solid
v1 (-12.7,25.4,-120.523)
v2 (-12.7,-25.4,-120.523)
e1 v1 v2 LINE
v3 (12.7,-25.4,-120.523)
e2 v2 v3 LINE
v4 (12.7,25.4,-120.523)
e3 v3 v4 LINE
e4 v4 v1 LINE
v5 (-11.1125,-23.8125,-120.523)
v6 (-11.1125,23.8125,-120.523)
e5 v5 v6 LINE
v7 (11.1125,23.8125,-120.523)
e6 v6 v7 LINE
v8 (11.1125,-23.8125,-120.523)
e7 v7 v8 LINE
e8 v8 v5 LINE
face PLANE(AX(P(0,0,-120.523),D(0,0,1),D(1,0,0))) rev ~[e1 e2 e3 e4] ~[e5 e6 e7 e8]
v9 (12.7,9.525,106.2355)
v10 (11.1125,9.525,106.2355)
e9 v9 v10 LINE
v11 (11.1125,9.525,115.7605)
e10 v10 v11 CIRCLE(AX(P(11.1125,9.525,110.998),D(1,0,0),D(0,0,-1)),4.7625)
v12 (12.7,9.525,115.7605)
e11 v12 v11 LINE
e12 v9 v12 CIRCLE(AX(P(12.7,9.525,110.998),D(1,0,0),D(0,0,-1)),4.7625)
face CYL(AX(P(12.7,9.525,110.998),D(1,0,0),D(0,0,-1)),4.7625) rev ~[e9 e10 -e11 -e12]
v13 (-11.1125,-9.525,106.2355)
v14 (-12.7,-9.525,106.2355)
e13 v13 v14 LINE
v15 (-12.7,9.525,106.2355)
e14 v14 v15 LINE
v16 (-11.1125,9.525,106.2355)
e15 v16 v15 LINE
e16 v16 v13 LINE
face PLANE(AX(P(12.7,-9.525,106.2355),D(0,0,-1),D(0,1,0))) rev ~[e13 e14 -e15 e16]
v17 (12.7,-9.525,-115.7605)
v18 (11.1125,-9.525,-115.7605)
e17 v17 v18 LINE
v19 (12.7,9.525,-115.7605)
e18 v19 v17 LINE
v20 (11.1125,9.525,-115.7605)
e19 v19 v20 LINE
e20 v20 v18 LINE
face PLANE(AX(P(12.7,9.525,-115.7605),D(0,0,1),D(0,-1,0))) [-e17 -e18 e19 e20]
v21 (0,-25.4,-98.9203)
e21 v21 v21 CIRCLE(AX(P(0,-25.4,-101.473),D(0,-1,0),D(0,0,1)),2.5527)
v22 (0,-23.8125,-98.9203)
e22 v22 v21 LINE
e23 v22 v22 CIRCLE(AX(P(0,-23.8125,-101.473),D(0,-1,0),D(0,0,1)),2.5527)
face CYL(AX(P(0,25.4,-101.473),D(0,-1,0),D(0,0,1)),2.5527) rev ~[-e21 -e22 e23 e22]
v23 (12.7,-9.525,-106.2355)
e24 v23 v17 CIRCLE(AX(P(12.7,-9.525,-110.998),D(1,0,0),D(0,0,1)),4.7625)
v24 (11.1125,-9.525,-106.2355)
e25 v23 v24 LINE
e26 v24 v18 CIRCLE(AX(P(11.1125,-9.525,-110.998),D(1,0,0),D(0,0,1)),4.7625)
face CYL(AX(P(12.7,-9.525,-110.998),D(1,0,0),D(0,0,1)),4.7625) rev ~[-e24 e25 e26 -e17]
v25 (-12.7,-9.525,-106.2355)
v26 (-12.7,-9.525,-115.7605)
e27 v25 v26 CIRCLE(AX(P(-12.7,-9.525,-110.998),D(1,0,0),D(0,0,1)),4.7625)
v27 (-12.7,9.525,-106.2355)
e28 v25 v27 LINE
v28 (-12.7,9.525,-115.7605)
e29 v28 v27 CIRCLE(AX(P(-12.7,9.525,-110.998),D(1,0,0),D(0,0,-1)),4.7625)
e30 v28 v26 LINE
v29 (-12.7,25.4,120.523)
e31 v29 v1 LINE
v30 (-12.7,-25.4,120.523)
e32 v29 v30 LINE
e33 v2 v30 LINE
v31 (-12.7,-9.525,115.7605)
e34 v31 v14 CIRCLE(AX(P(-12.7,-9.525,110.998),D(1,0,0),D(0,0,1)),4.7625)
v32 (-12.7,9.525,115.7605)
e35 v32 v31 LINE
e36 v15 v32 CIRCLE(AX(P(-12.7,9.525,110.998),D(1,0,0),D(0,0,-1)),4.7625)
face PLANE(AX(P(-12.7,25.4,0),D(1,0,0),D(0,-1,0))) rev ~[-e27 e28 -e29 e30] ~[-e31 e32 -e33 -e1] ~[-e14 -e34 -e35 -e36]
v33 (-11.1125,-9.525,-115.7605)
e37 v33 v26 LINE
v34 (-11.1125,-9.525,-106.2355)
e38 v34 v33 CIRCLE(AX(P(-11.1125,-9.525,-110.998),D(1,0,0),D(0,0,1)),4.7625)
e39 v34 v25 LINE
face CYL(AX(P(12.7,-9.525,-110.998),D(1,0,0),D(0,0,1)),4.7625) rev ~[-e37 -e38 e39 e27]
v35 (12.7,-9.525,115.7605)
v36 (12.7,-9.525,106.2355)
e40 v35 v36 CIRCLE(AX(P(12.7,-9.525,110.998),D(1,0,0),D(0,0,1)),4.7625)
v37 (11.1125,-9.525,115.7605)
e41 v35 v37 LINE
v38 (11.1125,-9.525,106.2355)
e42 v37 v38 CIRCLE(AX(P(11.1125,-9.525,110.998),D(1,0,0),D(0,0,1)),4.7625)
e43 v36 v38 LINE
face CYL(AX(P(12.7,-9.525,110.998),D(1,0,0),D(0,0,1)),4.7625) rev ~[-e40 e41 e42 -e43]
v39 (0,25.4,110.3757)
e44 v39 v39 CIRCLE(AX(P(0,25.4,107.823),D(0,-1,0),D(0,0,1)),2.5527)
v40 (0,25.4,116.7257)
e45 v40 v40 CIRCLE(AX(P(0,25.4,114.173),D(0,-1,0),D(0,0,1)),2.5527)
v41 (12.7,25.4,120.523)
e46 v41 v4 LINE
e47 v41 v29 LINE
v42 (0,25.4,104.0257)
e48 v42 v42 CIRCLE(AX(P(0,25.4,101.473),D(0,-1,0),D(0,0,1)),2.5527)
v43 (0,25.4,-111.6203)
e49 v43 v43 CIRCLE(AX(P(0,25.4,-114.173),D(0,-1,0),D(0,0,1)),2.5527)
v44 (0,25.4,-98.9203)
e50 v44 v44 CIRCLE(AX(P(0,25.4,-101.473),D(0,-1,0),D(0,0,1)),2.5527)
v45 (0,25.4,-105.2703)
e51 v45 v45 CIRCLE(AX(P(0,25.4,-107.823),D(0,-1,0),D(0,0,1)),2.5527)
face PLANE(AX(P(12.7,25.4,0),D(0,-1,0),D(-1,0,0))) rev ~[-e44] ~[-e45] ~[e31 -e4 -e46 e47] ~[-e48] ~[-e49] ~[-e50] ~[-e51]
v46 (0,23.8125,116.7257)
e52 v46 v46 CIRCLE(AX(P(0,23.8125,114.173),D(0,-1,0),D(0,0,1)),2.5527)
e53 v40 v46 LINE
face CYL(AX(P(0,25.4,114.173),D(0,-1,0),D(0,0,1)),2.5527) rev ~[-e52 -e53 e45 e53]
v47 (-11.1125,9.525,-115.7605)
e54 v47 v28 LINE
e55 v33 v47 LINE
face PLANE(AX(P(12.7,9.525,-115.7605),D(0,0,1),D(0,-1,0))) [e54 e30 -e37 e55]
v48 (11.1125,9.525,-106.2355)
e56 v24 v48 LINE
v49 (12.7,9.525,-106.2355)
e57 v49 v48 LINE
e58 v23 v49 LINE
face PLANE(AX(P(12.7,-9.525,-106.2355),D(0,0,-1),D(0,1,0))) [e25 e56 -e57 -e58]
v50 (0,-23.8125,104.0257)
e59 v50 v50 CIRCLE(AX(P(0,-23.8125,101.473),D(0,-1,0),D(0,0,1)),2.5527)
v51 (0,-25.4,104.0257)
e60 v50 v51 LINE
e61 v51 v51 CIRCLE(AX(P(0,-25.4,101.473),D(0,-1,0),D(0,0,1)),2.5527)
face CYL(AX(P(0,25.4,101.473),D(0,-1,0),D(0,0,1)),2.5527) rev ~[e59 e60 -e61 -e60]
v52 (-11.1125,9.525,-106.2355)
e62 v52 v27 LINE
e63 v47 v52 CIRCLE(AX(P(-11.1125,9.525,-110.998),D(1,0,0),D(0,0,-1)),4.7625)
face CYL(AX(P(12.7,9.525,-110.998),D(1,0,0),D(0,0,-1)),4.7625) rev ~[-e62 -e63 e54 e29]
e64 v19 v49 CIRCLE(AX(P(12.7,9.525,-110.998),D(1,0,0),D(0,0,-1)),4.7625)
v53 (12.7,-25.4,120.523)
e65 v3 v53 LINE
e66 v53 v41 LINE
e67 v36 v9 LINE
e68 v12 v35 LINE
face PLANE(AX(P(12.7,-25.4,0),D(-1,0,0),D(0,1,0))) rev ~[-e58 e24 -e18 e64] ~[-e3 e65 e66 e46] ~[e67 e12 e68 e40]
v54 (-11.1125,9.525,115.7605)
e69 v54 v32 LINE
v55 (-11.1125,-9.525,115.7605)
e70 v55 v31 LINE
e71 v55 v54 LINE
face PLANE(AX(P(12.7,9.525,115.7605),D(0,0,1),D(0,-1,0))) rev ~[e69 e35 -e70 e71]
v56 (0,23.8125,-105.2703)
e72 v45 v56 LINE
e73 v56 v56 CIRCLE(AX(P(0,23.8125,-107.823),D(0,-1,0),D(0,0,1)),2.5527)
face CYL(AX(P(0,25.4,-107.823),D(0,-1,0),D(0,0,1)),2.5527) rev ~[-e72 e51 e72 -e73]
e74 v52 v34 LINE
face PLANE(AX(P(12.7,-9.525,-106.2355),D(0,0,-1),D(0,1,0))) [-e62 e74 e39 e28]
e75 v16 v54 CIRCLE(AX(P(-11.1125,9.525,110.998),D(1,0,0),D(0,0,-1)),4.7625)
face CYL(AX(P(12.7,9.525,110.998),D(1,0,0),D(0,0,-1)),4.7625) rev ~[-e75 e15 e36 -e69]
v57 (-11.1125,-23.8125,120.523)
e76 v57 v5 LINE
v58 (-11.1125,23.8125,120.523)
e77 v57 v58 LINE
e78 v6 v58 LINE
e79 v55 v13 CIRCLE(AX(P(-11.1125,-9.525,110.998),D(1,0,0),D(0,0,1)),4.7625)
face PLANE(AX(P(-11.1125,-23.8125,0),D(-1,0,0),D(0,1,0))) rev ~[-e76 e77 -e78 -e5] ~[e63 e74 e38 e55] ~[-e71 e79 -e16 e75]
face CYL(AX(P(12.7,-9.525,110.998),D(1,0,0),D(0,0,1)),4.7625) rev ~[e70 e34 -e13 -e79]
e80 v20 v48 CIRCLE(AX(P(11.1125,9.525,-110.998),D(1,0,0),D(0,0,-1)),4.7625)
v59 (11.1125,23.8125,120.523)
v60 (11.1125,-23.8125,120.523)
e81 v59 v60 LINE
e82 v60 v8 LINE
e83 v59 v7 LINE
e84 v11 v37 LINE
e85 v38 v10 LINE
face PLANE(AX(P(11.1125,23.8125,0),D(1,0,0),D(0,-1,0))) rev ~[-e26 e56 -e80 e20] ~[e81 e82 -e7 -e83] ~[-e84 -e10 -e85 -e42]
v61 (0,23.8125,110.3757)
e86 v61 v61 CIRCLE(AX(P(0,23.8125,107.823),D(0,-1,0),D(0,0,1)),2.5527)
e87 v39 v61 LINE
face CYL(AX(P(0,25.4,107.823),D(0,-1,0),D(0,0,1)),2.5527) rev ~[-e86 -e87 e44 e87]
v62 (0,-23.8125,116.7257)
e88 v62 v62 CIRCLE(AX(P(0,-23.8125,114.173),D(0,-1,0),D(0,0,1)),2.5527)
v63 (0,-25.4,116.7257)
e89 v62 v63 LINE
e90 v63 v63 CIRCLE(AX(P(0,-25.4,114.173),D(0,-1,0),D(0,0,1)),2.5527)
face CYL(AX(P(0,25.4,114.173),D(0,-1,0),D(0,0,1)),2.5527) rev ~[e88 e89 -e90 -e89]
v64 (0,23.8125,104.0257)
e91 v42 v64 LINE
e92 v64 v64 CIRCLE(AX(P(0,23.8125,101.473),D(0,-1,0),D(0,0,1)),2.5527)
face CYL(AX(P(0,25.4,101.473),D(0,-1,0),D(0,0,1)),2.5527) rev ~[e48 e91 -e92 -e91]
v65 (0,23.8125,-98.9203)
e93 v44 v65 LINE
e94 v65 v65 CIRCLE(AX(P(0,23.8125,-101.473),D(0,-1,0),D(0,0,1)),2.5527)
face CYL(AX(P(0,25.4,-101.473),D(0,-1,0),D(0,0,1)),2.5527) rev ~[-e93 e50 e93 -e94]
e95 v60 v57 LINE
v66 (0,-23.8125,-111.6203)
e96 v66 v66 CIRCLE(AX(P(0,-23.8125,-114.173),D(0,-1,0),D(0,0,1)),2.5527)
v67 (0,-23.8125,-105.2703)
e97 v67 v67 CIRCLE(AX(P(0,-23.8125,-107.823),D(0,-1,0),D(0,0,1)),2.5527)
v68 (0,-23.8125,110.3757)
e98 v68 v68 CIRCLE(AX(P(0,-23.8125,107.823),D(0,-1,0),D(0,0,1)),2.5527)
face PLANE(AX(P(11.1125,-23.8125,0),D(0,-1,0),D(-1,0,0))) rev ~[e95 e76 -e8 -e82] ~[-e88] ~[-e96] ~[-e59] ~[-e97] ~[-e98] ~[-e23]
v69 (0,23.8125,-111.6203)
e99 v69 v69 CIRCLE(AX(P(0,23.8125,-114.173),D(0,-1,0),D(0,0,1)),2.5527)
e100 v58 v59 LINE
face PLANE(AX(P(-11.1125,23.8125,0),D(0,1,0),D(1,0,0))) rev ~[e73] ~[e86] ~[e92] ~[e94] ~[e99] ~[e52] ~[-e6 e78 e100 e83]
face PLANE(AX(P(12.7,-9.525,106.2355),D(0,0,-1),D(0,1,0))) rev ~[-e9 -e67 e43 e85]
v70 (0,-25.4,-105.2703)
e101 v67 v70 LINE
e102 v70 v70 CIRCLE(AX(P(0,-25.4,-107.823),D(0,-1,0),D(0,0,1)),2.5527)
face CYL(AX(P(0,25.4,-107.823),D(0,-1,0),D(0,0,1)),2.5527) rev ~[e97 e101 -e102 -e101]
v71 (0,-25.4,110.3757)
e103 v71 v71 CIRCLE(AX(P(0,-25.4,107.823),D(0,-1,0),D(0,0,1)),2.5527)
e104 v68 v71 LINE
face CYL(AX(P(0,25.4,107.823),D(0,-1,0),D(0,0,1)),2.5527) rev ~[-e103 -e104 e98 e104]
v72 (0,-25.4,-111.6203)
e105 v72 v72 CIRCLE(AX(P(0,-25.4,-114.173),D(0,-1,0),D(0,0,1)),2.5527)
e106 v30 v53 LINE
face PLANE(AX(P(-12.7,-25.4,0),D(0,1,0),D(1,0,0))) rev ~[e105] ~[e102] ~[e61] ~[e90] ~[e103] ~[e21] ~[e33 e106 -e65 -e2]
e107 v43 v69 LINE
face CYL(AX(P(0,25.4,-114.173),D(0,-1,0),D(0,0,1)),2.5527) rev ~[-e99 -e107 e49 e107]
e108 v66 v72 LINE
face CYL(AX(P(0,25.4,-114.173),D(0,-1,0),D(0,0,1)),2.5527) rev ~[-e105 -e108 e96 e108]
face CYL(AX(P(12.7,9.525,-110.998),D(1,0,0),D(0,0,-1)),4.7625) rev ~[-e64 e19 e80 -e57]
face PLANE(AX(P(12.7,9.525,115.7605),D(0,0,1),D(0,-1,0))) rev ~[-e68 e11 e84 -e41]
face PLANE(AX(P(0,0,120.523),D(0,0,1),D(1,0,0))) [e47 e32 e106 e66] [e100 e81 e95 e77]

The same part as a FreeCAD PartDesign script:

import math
import FreeCAD as App
import Part
import Sketcher
from FreeCAD import Vector
Q = App.Units.Quantity

doc = App.newDocument("Part")
body = doc.addObject("PartDesign::Body", "Body")

sketch1 = body.newObject("Sketcher::SketchObject", "Sketch")
sketch1.AttachmentSupport = (doc.getObject("XY_Plane"), [""])
sketch1.MapMode = "FlatFace"
sketch1.addGeometry([
    Part.LineSegment(Vector(-13, 25, 0), Vector(-13, -25, 0)),
    Part.LineSegment(Vector(-13, -25, 0), Vector(13, -25, 0)),
    Part.LineSegment(Vector(13, -25, 0), Vector(13, 25, 0)),
    Part.LineSegment(Vector(13, 25, 0), Vector(-13, 25, 0)),
    Part.LineSegment(Vector(-11, -24, 0), Vector(-11, 24, 0)),
    Part.LineSegment(Vector(-11, 24, 0), Vector(11, 24, 0)),
    Part.LineSegment(Vector(11, 24, 0), Vector(11, -24, 0)),
    Part.LineSegment(Vector(11, -24, 0), Vector(-11, -24, 0)),
], False)
sketch1.addConstraint([
    Sketcher.Constraint("Coincident", 0, 2, 1, 1),
    Sketcher.Constraint("Coincident", 1, 2, 2, 1),
    Sketcher.Constraint("Coincident", 2, 2, 3, 1),
    Sketcher.Constraint("Coincident", 3, 2, 0, 1),
    Sketcher.Constraint("Coincident", 4, 2, 5, 1),
    Sketcher.Constraint("Coincident", 5, 2, 6, 1),
    Sketcher.Constraint("Coincident", 6, 2, 7, 1),
    Sketcher.Constraint("Coincident", 7, 2, 4, 1),
    Sketcher.Constraint("Vertical", 0),
    Sketcher.Constraint("Horizontal", 1),
    Sketcher.Constraint("Vertical", 2),
    Sketcher.Constraint("Horizontal", 3),
    Sketcher.Constraint("Vertical", 4),
    Sketcher.Constraint("Horizontal", 5),
    Sketcher.Constraint("Vertical", 6),
    Sketcher.Constraint("Horizontal", 7),
    Sketcher.Constraint("Symmetric", 0, 2, 2, 2, -1, 1),
    Sketcher.Constraint("Symmetric", 4, 2, 6, 2, -1, 1),
    Sketcher.Constraint("DistanceX", 1, 1, 1, 2, Q("1 in")),
    Sketcher.Constraint("DistanceY", 0, 2, 0, 1, Q("2 in")),
    Sketcher.Constraint("DistanceX", 3, 2, 4, 2, Q("0.0625 in")),
    Sketcher.Constraint("DistanceY", 4, 2, 3, 2, Q("0.0625 in")),
])
pad1 = body.newObject("PartDesign::Pad", "Pad")
pad1.Profile = sketch1
pad1.Length = Q("9.49 in")
pad1.Midplane = True

sketch2 = body.newObject("Sketcher::SketchObject", "Sketch001")
sketch2.AttachmentSupport = (doc.getObject("XZ_Plane"), [""])
sketch2.MapMode = "FlatFace"
sketch2.AttachmentOffset = App.Placement(Vector(0, 0, -1 * 25.4), App.Rotation())
sketch2.addGeometry([
    Part.Circle(Vector(0, 114.2, 0), Vector(0, 0, 1), 2.6),
    Part.Circle(Vector(0, 107.8, 0), Vector(0, 0, 1), 2.6),
    Part.Circle(Vector(0, 101.5, 0), Vector(0, 0, 1), 2.6),
    Part.Circle(Vector(0, -101.5, 0), Vector(0, 0, 1), 2.6),
    Part.Circle(Vector(0, -107.8, 0), Vector(0, 0, 1), 2.6),
    Part.Circle(Vector(0, -114.2, 0), Vector(0, 0, 1), 2.6),
], False)
sketch2.addConstraint([
    Sketcher.Constraint("Equal", 0, 1),
    Sketcher.Constraint("Equal", 1, 2),
    Sketcher.Constraint("Equal", 2, 3),
    Sketcher.Constraint("Equal", 3, 4),
    Sketcher.Constraint("Equal", 4, 5),
    Sketcher.Constraint("Symmetric", 2, 3, 3, 3, -1, 1),
    Sketcher.Constraint("Symmetric", 1, 3, 4, 3, -1, 1),
    Sketcher.Constraint("Symmetric", 0, 3, 5, 3, -1, 1),
    Sketcher.Constraint("PointOnObject", 0, 3, -2),
    Sketcher.Constraint("PointOnObject", 1, 3, -2),
    Sketcher.Constraint("PointOnObject", 2, 3, -2),
    Sketcher.Constraint("Diameter", 0, Q("0.201 in")),
    Sketcher.Constraint("DistanceY", 2, 3, 0, 3, Q("0.5 in")),
    Sketcher.Constraint("DistanceY", 1, 3, 0, 3, Q("0.25 in")),
    Sketcher.Constraint("DistanceY", 3, 3, 2, 3, Q("7.99 in")),
])
doc.recompute()
hole = body.newObject("PartDesign::Hole", "Hole")
hole.Profile = sketch2
hole.ThreadType = "None"
hole.Diameter = Q("0.201 in")
hole.DepthType = "ThroughAll"
hole.Reversed = True

sketch3 = body.newObject("Sketcher::SketchObject", "Sketch002")
sketch3.AttachmentSupport = (doc.getObject("YZ_Plane"), [""])
sketch3.MapMode = "FlatFace"
sketch3.AttachmentOffset = App.Placement(Vector(0, 0, 0.5 * 25.4), App.Rotation())
sketch3.addGeometry([
    Part.ArcOfCircle(Part.Circle(Vector(9.5, 111, 0), Vector(0, 0, 1), 4.8), math.radians(-90), math.radians(90)),
    Part.LineSegment(Vector(9.5, 115.8, 0), Vector(-9.5, 115.8, 0)),
    Part.ArcOfCircle(Part.Circle(Vector(-9.5, 111, 0), Vector(0, 0, 1), 4.8), math.radians(90), math.radians(270)),
    Part.LineSegment(Vector(-9.5, 106.2, 0), Vector(9.5, 106.2, 0)),
    Part.LineSegment(Vector(-9.5, -115.8, 0), Vector(9.5, -115.8, 0)),
    Part.ArcOfCircle(Part.Circle(Vector(9.5, -111, 0), Vector(0, 0, 1), 4.8), math.radians(-90), math.radians(90)),
    Part.LineSegment(Vector(9.5, -106.2, 0), Vector(-9.5, -106.2, 0)),
    Part.ArcOfCircle(Part.Circle(Vector(-9.5, -111, 0), Vector(0, 0, 1), 4.8), math.radians(90), math.radians(270)),
], False)
sketch3.addConstraint([
    Sketcher.Constraint("Tangent", 0, 2, 1, 1),
    Sketcher.Constraint("Tangent", 1, 2, 2, 1),
    Sketcher.Constraint("Tangent", 2, 2, 3, 1),
    Sketcher.Constraint("Tangent", 3, 2, 0, 1),
    Sketcher.Constraint("Tangent", 4, 2, 5, 1),
    Sketcher.Constraint("Tangent", 5, 2, 6, 1),
    Sketcher.Constraint("Tangent", 6, 2, 7, 1),
    Sketcher.Constraint("Tangent", 7, 2, 4, 1),
    Sketcher.Constraint("Horizontal", 1),
    Sketcher.Constraint("Horizontal", 3),
    Sketcher.Constraint("Horizontal", 4),
    Sketcher.Constraint("Horizontal", 6),
    Sketcher.Constraint("Equal", 2, 5),
    Sketcher.Constraint("Symmetric", 2, 3, 5, 3, -1, 1),
    Sketcher.Constraint("Vertical", 0, 3, 5, 3),
    Sketcher.Constraint("Vertical", 2, 3, 7, 3),
    Sketcher.Constraint("Radius", 0, Q("0.1875 in")),
    Sketcher.Constraint("DistanceX", 1, 2, 1, 1, Q("0.75 in")),
    Sketcher.Constraint("DistanceY", -1, 1, 0, 3, Q("4.37 in")),
])
pocket1 = body.newObject("PartDesign::Pocket", "Pocket")
pocket1.Profile = sketch3
pocket1.Type = "ThroughAll"

doc.recompute()
